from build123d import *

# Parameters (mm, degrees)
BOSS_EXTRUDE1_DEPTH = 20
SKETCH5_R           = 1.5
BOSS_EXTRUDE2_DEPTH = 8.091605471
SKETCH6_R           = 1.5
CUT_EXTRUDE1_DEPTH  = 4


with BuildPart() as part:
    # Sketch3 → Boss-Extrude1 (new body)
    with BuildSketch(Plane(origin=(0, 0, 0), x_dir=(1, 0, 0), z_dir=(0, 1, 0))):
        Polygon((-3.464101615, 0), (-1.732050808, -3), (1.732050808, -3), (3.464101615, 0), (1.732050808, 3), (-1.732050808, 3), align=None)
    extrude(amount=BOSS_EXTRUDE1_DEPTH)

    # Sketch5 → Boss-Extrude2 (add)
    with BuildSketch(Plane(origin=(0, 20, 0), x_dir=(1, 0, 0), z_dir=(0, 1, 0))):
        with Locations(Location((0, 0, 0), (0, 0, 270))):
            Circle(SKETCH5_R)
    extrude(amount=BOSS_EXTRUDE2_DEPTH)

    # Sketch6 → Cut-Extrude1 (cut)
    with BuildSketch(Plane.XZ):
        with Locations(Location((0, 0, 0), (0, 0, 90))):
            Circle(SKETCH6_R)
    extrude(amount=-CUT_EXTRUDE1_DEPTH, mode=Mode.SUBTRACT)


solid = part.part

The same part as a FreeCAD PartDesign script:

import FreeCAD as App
import Part
import Sketcher

V = App.Vector
Q = App.Units.Quantity


def add_polygon(sketch, points):
    """Adds a closed chain of lines whose ends are joined by coincident constraints."""
    first, n = sketch.GeometryCount, len(points)
    for a, b in zip(points, points[1:] + points[:1]):
        sketch.addGeometry(Part.LineSegment(App.Vector(*a, 0), App.Vector(*b, 0)), False)
    for i in range(n):
        sketch.addConstraint(Sketcher.Constraint("Coincident", first + i, 2, first + (i + 1) % n, 1))

doc = App.newDocument("Part")
body = doc.addObject("PartDesign::Body", "Body")

sketch1 = body.newObject("Sketcher::SketchObject", "Sketch")
sketch1.AttachmentSupport = (doc.getObject("XZ_Plane"), [""])
sketch1.MapMode = "FlatFace"
add_polygon(sketch1, [(-3.5, 0), (-1.7, 3), (1.7, 3), (3.5, 0), (1.7, -3), (-1.7, -3)])
sketch1.addConstraint([
    Sketcher.Constraint("Horizontal", 1),
    Sketcher.Constraint("Horizontal", 4),
    Sketcher.Constraint("Symmetric", 0, 2, 3, 2, -1, 1),
    Sketcher.Constraint("Symmetric", 2, 2, 5, 2, -1, 1),
    Sketcher.Constraint("PointOnObject", 2, 2, -1),
    Sketcher.Constraint("Parallel", 2, 5),
    Sketcher.Constraint("Vertical", 1, 2, 3, 2),
    Sketcher.Constraint("Angle", 0, Q("60 deg")),
    Sketcher.Constraint("DistanceY", -1, 1, 0, 2, Q("3 mm")),
    Sketcher.Constraint("DistanceX", 1, 1, 1, 2, Q("3.464102 mm")),
])
pad1 = body.newObject("PartDesign::Pad", "Pad")
pad1.Profile = sketch1
pad1.Length = 20
pad1.Reversed = True

sketch2 = body.newObject("Sketcher::SketchObject", "Sketch001")
sketch2.AttachmentSupport = (doc.getObject("XZ_Plane"), [""])
sketch2.MapMode = "FlatFace"
sketch2.AttachmentOffset = App.Placement(V(0, 0, -20), App.Rotation())
sketch2.addGeometry(Part.Circle(V(0, 0, 0), V(0, 0, 1), 1.5), False)
sketch2.addConstraint([
    Sketcher.Constraint("Coincident", 0, 3, -1, 1),
    Sketcher.Constraint("Diameter", 0, Q("3 mm")),
])
pad2 = body.newObject("PartDesign::Pad", "Pad001")
pad2.Profile = sketch2
pad2.Length = 8.091605
pad2.Reversed = True

sketch3 = body.newObject("Sketcher::SketchObject", "Sketch002")
sketch3.AttachmentSupport = (doc.getObject("XZ_Plane"), [""])
sketch3.MapMode = "FlatFace"
sketch3.addGeometry(Part.Circle(V(0, 0, 0), V(0, 0, 1), 1.5), False)
sketch3.addConstraint([
    Sketcher.Constraint("Coincident", 0, 3, -1, 1),
    Sketcher.Constraint("Diameter", 0, Q("3 mm")),
])
pocket1 = body.newObject("PartDesign::Pocket", "Pocket")
pocket1.Profile = sketch3
pocket1.Length = 4

doc.recompute()
